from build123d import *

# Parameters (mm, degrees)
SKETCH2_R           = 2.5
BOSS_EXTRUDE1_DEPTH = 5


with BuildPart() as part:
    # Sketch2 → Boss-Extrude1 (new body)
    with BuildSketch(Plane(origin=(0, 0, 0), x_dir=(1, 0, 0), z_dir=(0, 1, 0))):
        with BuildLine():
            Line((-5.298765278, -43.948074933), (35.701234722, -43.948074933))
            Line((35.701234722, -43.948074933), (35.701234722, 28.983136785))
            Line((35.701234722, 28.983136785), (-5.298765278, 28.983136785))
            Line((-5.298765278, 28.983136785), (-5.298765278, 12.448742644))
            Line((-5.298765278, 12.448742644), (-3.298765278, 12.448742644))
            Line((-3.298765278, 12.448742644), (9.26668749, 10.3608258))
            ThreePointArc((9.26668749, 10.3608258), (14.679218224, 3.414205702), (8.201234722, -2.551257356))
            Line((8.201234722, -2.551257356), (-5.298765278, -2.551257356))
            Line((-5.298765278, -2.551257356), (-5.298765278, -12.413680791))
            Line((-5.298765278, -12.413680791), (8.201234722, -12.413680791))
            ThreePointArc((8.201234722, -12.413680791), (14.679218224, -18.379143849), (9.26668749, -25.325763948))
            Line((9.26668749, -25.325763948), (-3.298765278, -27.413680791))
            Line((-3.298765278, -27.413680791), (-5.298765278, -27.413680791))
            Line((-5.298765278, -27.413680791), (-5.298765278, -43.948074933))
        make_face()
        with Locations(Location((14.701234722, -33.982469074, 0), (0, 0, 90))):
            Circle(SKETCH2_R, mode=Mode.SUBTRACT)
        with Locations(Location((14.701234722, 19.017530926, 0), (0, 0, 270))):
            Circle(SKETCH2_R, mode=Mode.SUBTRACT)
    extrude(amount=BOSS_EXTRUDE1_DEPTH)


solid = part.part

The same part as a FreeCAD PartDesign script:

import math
import FreeCAD as App
import Part
import Sketcher

V = App.Vector
Q = App.Units.Quantity

doc = App.newDocument("Part")
params = doc.addObject("Spreadsheet::Sheet", "Params")
for row, (alias, value) in enumerate([
    ("sketch1_diameter", "5 mm"),
    ("sketch1_radius", "6.5 mm"),
    ("sketch1_width", "41 mm"),
    ("sketch1_width2", "2 mm"),
    ("sketch1_width3", "13.5 mm"),
    ("pad1_length", "5 mm"),
], start=1):
    params.set(f"A{row}", alias)
    params.set(f"B{row}", "=" + value)
    params.setAlias(f"B{row}", alias)

body = doc.addObject("PartDesign::Body", "Body")

# Sketch on XZ plane
sketch1 = body.newObject("Sketcher::SketchObject", "Sketch")
sketch1.AttachmentSupport = (doc.getObject("XZ_Plane"), [""])
sketch1.MapMode = "FlatFace"
sketch1.addGeometry([
    Part.LineSegment(V(-5.3, 43.9, 0), V(35.7, 43.9, 0)),  # 0
    Part.LineSegment(V(35.7, 43.9, 0), V(35.7, -29, 0)),  # 1
    Part.LineSegment(V(35.7, -29, 0), V(-5.3, -29, 0)),  # 2
    Part.LineSegment(V(-5.3, -29, 0), V(-5.3, -12.4, 0)),  # 3
    Part.LineSegment(V(-5.3, -12.4, 0), V(-3.3, -12.4, 0)),  # 4
    Part.LineSegment(V(-3.3, -12.4, 0), V(9.3, -10.4, 0)),  # 5
    Part.ArcOfCircle(Part.Circle(V(8.2, -3.9, 0), V(0, 0, 1), 6.5), math.radians(-81), math.radians(90)),  # 6
    Part.LineSegment(V(8.2, 2.6, 0), V(-5.3, 2.6, 0)),  # 7
    Part.LineSegment(V(-5.3, 2.6, 0), V(-5.3, 12.4, 0)),  # 8
    Part.LineSegment(V(-5.3, 12.4, 0), V(8.2, 12.4, 0)),  # 9
    Part.ArcOfCircle(Part.Circle(V(8.2, 18.9, 0), V(0, 0, 1), 6.5), math.radians(-90), math.radians(81)),  # 10
    Part.LineSegment(V(9.3, 25.3, 0), V(-3.3, 27.4, 0)),  # 11
    Part.LineSegment(V(-3.3, 27.4, 0), V(-5.3, 27.4, 0)),  # 12
    Part.LineSegment(V(-5.3, 27.4, 0), V(-5.3, 43.9, 0)),  # 13
    Part.Circle(V(14.7, 34, 0), V(0, 0, 1), 2.5),  # 14
    Part.Circle(V(14.7, -19, 0), V(0, 0, 1), 2.5),  # 15
], False)
sketch1.addConstraint([
    Sketcher.Constraint("Coincident", 0, 2, 1, 1),
    Sketcher.Constraint("Coincident", 1, 2, 2, 1),
    Sketcher.Constraint("Coincident", 2, 2, 3, 1),
    Sketcher.Constraint("Coincident", 3, 2, 4, 1),
    Sketcher.Constraint("Coincident", 4, 2, 5, 1),
    Sketcher.Constraint("Tangent", 5, 2, 6, 1),
    Sketcher.Constraint("Tangent", 6, 2, 7, 1),
    Sketcher.Constraint("Coincident", 7, 2, 8, 1),
    Sketcher.Constraint("Coincident", 8, 2, 9, 1),
    Sketcher.Constraint("Tangent", 9, 2, 10, 1),
    Sketcher.Constraint("Tangent", 10, 2, 11, 1),
    Sketcher.Constraint("Coincident", 11, 2, 12, 1),
    Sketcher.Constraint("Coincident", 12, 2, 13, 1),
    Sketcher.Constraint("Coincident", 13, 2, 0, 1),
    Sketcher.Constraint("Horizontal", 0),
    Sketcher.Constraint("Vertical", 1),
    Sketcher.Constraint("Horizontal", 2),
    Sketcher.Constraint("Vertical", 3),
    Sketcher.Constraint("Horizontal", 4),
    Sketcher.Constraint("Horizontal", 7),
    Sketcher.Constraint("Vertical", 8),
    Sketcher.Constraint("Horizontal", 9),
    Sketcher.Constraint("Horizontal", 12),
    Sketcher.Constraint("Vertical", 13),
    Sketcher.Constraint("Equal", 6, 10),
    Sketcher.Constraint("Equal", 14, 15),
    Sketcher.Constraint("Vertical", 6, 3, 10, 3),
    Sketcher.Constraint("Vertical", 14, 3, 15, 3),
    Sketcher.Constraint("Vertical", 3, 2, 7, 2),
    Sketcher.Constraint("Vertical", 5, 2, 10, 2),
    Sketcher.Constraint("Vertical", 4, 2, 11, 2),
    Sketcher.Constraint("Vertical", 8, 2, 12, 2),
    Sketcher.Constraint("Equal", 3, 13),
    Sketcher.Constraint("Diameter", 14, Q("5 mm")),
    Sketcher.Constraint("Radius", 6, Q("6.5 mm")),
    Sketcher.Constraint("DistanceX", 0, 1, 0, 2, Q("41 mm")),
    Sketcher.Constraint("DistanceX", 4, 1, 4, 2, Q("2 mm")),
    Sketcher.Constraint("DistanceX", 7, 2, 7, 1, Q("13.5 mm")),
    Sketcher.Constraint("DistanceY", 15, 3, 14, 3, Q("53 mm")),
    Sketcher.Constraint("DistanceX", 14, 3, 0, 2, Q("21 mm")),
    Sketcher.Constraint("DistanceY", 4, 2, 6, 2, Q("15 mm")),
    Sketcher.Constraint("DistanceY", 1, 2, 1, 1, Q("72.931212 mm")),
    Sketcher.Constraint("DistanceY", 3, 1, 3, 2, Q("16.534394 mm")),
    Sketcher.Constraint("DistanceY", -1, 1, 10, 3, Q("18.913681 mm")),
    Sketcher.Constraint("DistanceY", -1, 1, 14, 3, Q("33.982469 mm")),
    Sketcher.Constraint("DistanceX", -1, 1, 6, 3, Q("8.201235 mm")),
])
sketch1.setExpression("Constraints[33]", "Params.sketch1_diameter")
sketch1.setExpression("Constraints[34]", "Params.sketch1_radius")
sketch1.setExpression("Constraints[35]", "Params.sketch1_width")
sketch1.setExpression("Constraints[36]", "Params.sketch1_width2")
sketch1.setExpression("Constraints[37]", "Params.sketch1_width3")
pad1 = body.newObject("PartDesign::Pad", "Pad")
pad1.Profile = sketch1
pad1.setExpression("Length", "Params.pad1_length")
pad1.Reversed = True

doc.recompute()
